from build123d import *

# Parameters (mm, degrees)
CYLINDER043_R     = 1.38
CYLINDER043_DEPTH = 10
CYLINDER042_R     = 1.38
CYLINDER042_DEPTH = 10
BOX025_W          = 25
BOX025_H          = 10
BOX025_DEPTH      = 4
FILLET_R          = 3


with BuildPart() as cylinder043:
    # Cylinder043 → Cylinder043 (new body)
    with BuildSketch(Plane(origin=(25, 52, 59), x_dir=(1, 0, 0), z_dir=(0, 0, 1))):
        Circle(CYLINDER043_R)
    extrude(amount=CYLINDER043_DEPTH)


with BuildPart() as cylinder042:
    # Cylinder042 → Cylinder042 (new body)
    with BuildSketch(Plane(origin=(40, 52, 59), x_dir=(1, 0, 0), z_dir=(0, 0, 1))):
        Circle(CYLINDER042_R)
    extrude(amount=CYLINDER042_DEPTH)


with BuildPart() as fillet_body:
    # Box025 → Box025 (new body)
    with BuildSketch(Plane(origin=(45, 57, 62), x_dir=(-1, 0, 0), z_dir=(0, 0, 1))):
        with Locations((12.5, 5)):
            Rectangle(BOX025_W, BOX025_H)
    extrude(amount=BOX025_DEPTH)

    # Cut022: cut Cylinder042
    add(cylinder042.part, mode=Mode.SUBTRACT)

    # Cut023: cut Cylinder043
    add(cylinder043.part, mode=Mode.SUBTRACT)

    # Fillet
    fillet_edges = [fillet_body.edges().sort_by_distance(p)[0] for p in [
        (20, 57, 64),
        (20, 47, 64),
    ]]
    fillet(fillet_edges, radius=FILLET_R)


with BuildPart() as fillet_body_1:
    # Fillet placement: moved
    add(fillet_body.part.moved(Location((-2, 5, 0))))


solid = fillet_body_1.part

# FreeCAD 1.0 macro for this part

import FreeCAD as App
import Part
import Sketcher


def edges_at(feature, points):
    """Names of the edges that pass closest to the given points."""
    edges = feature.Shape.Edges
    near = lambda p: min(range(len(edges)), key=lambda i: edges[i].distToShape(Part.Vertex(*p))[0])
    return sorted({f"Edge{near(p) + 1}" for p in points})


def add_polygon(sketch, points):
    """Adds a closed chain of lines whose ends are joined by coincident constraints."""
    first, n = sketch.GeometryCount, len(points)
    for a, b in zip(points, points[1:] + points[:1]):
        sketch.addGeometry(Part.LineSegment(App.Vector(*a, 0), App.Vector(*b, 0)), False)
    for i in range(n):
        sketch.addConstraint(Sketcher.Constraint("Coincident", first + i, 2, first + (i + 1) % n, 1))

doc = App.newDocument("Part")
params = doc.addObject("Spreadsheet::Sheet", "Params")
for row, (alias, value) in enumerate([
    ("sketch1_diameter", "2.76 mm"),
    ("pad1_length", "10 mm"),
    ("sketch2_diameter", "2.76 mm"),
    ("pad2_length", "10 mm"),
    ("sketch3_width", "25 mm"),
    ("sketch3_height", "10 mm"),
    ("pad3_length", "4 mm"),
    ("fillet_radius", "3 mm"),
], start=1):
    params.set(f"A{row}", alias)
    params.set(f"B{row}", "=" + value)
    params.setAlias(f"B{row}", alias)

body = doc.addObject("PartDesign::Body", "Body")

# Sketch on XY plane
sketch1 = body.newObject("Sketcher::SketchObject", "Sketch")
sketch1.AttachmentSupport = (doc.getObject("XY_Plane"), [""])
sketch1.MapMode = "FlatFace"
sketch1.AttachmentOffset = App.Placement(App.Vector(0, 0, 59), App.Rotation())
sketch1.addGeometry(Part.Circle(App.Vector(25, 52, 0), App.Vector(0, 0, 1), 1.4), False)
sketch1.addConstraint([
    Sketcher.Constraint("Diameter", 0, 2.76),
    Sketcher.Constraint("DistanceX", -1, 1, 0, 3, 25.0),
    Sketcher.Constraint("DistanceY", -1, 1, 0, 3, 52.0),
])
sketch1.setExpression("Constraints[0]", "Params.sketch1_diameter")
pad1 = body.newObject("PartDesign::Pad", "Pad")
pad1.Profile = sketch1
pad1.setExpression("Length", "Params.pad1_length")
body2 = doc.addObject("PartDesign::Body", "Body001")

# Sketch on XY plane
sketch2 = body2.newObject("Sketcher::SketchObject", "Sketch001")
sketch2.AttachmentSupport = (doc.getObject("XY_Plane001"), [""])
sketch2.MapMode = "FlatFace"
sketch2.AttachmentOffset = App.Placement(App.Vector(0, 0, 59), App.Rotation())
sketch2.addGeometry(Part.Circle(App.Vector(40, 52, 0), App.Vector(0, 0, 1), 1.4), False)
sketch2.addConstraint([
    Sketcher.Constraint("Diameter", 0, 2.76),
    Sketcher.Constraint("DistanceX", -1, 1, 0, 3, 40.0),
    Sketcher.Constraint("DistanceY", -1, 1, 0, 3, 52.0),
])
sketch2.setExpression("Constraints[0]", "Params.sketch2_diameter")
pad2 = body2.newObject("PartDesign::Pad", "Pad001")
pad2.Profile = sketch2
pad2.setExpression("Length", "Params.pad2_length")
body3 = doc.addObject("PartDesign::Body", "Body002")

# Sketch on XY plane
sketch3 = body3.newObject("Sketcher::SketchObject", "Sketch002")
sketch3.AttachmentSupport = (doc.getObject("XY_Plane002"), [""])
sketch3.MapMode = "FlatFace"
sketch3.AttachmentOffset = App.Placement(App.Vector(0, 0, 62), App.Rotation())
add_polygon(sketch3, [(45, 47), (45, 57), (20, 57), (20, 47)])  # lines 0-3
sketch3.addConstraint([
    Sketcher.Constraint("Vertical", 0),
    Sketcher.Constraint("Horizontal", 1),
    Sketcher.Constraint("Vertical", 2),
    Sketcher.Constraint("Horizontal", 3),
    Sketcher.Constraint("DistanceX", 1, 2, 1, 1, 25.0),
    Sketcher.Constraint("DistanceY", 0, 1, 0, 2, 10.0),
    Sketcher.Constraint("DistanceX", -1, 1, 0, 2, 45.0),
    Sketcher.Constraint("DistanceY", -1, 1, 0, 2, 57.0),
])
sketch3.setExpression("Constraints[8]", "Params.sketch3_width")
sketch3.setExpression("Constraints[9]", "Params.sketch3_height")
pad3 = body3.newObject("PartDesign::Pad", "Pad002")
pad3.Profile = sketch3
pad3.setExpression("Length", "Params.pad3_length")
doc.recompute()

boolean = body3.newObject("PartDesign::Boolean", "Boolean")
boolean.Type = "Cut"
boolean.addObjects([body2])
doc.recompute()

boolean2 = body3.newObject("PartDesign::Boolean", "Boolean001")
boolean2.Type = "Cut"
boolean2.addObjects([body])
doc.recompute()

fillet = body3.newObject("PartDesign::Fillet", "Fillet")
fillet.Base = (boolean2, edges_at(boolean2, [(20, 57, 64), (20, 47, 64)]))
fillet.setExpression("Radius", "Params.fillet_radius")
body4 = doc.addObject("PartDesign::Body", "Body003")
doc.recompute()

body3.Placement = App.Placement(App.Vector(-2, 5, 0), App.Rotation(App.Vector(0, 0, 1), 0))
boolean3 = body4.newObject("PartDesign::Boolean", "Boolean002")
boolean3.Type = "Fuse"
boolean3.addObjects([body3])

doc.recompute()
